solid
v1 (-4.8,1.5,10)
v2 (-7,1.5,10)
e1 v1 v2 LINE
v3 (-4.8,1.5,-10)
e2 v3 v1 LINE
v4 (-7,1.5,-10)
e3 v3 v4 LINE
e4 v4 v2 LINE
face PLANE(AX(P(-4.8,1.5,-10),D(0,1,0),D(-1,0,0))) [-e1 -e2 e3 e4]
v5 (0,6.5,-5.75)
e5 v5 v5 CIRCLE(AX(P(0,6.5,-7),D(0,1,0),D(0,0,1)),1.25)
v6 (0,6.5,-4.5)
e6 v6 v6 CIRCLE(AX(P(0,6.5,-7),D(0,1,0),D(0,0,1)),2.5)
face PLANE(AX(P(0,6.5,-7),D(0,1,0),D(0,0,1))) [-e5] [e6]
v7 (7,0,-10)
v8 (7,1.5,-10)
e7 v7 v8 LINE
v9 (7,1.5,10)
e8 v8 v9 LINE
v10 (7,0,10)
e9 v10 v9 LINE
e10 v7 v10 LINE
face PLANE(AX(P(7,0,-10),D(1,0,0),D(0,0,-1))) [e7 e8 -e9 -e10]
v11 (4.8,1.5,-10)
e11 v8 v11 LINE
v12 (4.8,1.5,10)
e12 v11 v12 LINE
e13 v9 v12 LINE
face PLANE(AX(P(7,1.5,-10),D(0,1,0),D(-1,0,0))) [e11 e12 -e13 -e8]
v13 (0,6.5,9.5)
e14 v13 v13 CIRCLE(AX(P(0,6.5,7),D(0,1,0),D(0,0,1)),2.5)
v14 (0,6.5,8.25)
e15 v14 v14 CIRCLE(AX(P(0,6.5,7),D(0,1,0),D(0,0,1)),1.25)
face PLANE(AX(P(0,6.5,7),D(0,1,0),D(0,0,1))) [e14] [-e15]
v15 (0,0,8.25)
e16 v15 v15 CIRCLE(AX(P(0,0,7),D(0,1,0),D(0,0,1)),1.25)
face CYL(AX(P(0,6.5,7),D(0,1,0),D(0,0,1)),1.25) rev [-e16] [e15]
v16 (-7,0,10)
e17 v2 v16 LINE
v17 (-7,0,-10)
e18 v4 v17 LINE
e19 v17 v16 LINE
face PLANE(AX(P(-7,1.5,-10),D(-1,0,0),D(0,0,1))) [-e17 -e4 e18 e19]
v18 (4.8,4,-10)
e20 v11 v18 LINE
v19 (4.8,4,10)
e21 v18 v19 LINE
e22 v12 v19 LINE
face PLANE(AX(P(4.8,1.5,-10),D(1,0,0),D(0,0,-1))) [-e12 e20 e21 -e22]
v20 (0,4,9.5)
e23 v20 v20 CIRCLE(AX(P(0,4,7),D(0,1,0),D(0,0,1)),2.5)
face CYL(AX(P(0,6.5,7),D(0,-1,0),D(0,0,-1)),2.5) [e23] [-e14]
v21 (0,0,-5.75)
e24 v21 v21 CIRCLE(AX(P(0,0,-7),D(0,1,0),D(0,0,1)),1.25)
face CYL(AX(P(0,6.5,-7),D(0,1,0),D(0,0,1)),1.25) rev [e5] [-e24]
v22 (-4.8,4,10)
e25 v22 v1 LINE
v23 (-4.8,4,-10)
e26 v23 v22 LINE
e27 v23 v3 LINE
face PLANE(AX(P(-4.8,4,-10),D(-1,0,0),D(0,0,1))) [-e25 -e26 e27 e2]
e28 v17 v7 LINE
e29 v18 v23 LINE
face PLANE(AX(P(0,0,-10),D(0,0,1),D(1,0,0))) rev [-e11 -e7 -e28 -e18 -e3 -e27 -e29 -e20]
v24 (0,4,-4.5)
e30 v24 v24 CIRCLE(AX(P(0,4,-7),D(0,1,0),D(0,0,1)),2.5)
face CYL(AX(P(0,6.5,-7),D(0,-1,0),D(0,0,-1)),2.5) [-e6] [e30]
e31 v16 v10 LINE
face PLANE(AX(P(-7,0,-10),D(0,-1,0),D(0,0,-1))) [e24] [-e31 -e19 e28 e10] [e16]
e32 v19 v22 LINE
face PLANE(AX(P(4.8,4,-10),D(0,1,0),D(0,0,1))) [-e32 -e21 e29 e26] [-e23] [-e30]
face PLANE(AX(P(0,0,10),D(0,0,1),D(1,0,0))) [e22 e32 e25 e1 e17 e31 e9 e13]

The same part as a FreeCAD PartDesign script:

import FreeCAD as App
import Part
import Sketcher
from FreeCAD import Vector
Q = App.Units.Quantity

doc = App.newDocument("Part")
body = doc.addObject("PartDesign::Body", "Body")

sketch1 = body.newObject("Sketcher::SketchObject", "Sketch")
sketch1.AttachmentSupport = (doc.getObject("XY_Plane"), [""])
sketch1.MapMode = "FlatFace"
sketch1.addGeometry([
    Part.LineSegment(Vector(-7, 0, 0), Vector(7, 0, 0)),
    Part.LineSegment(Vector(7, 0, 0), Vector(7, 1.5, 0)),
    Part.LineSegment(Vector(7, 1.5, 0), Vector(4.8, 1.5, 0)),
    Part.LineSegment(Vector(4.8, 1.5, 0), Vector(4.8, 4, 0)),
    Part.LineSegment(Vector(4.8, 4, 0), Vector(-4.8, 4, 0)),
    Part.LineSegment(Vector(-4.8, 4, 0), Vector(-4.8, 1.5, 0)),
    Part.LineSegment(Vector(-4.8, 1.5, 0), Vector(-7, 1.5, 0)),
    Part.LineSegment(Vector(-7, 1.5, 0), Vector(-7, 0, 0)),
], False)
sketch1.addConstraint([
    Sketcher.Constraint("Coincident", 0, 2, 1, 1),
    Sketcher.Constraint("Coincident", 1, 2, 2, 1),
    Sketcher.Constraint("Coincident", 2, 2, 3, 1),
    Sketcher.Constraint("Coincident", 3, 2, 4, 1),
    Sketcher.Constraint("Coincident", 4, 2, 5, 1),
    Sketcher.Constraint("Coincident", 5, 2, 6, 1),
    Sketcher.Constraint("Coincident", 6, 2, 7, 1),
    Sketcher.Constraint("Coincident", 7, 2, 0, 1),
    Sketcher.Constraint("Horizontal", 0),
    Sketcher.Constraint("Vertical", 1),
    Sketcher.Constraint("Horizontal", 2),
    Sketcher.Constraint("Vertical", 3),
    Sketcher.Constraint("Horizontal", 4),
    Sketcher.Constraint("Vertical", 5),
    Sketcher.Constraint("Horizontal", 6),
    Sketcher.Constraint("Vertical", 7),
    Sketcher.Constraint("Symmetric", 0, 2, 7, 2, -1, 1),
    Sketcher.Constraint("Symmetric", 2, 2, 5, 2, -2),
    Sketcher.Constraint("DistanceX", 0, 1, 0, 2, Q("14 mm")),
    Sketcher.Constraint("DistanceX", 2, 2, 2, 1, Q("2.2 mm")),
    Sketcher.Constraint("DistanceY", 1, 1, 1, 2, Q("1.5 mm")),
    Sketcher.Constraint("DistanceY", 3, 1, 3, 2, Q("2.5 mm")),
])
pad1 = body.newObject("PartDesign::Pad", "Pad")
pad1.Profile = sketch1
pad1.Type = "TwoLengths"
pad1.Length = 10
pad1.Length2 = 10

sketch2 = body.newObject("Sketcher::SketchObject", "Sketch001")
sketch2.AttachmentSupport = (doc.getObject("XZ_Plane"), [""])
sketch2.MapMode = "FlatFace"
sketch2.AttachmentOffset = App.Placement(Vector(0, 0, -4), App.Rotation())
sketch2.addGeometry([
    Part.Circle(Vector(0, -7, 0), Vector(0, 0, 1), 2.5),
    Part.Circle(Vector(0, 7, 0), Vector(0, 0, 1), 2.5),
], False)
sketch2.addConstraint([
    Sketcher.Constraint("Equal", 0, 1),
    Sketcher.Constraint("Symmetric", 0, 3, 1, 3, -1, 1),
    Sketcher.Constraint("PointOnObject", 0, 3, -2),
    Sketcher.Constraint("Diameter", 0, Q("5 mm")),
    Sketcher.Constraint("DistanceY", 0, 3, -1, 1, Q("7 mm")),
])
pad2 = body.newObject("PartDesign::Pad", "Pad001")
pad2.Profile = sketch2
pad2.Length = 2.5
pad2.Reversed = True

sketch3 = body.newObject("Sketcher::SketchObject", "Sketch002")
sketch3.AttachmentSupport = (doc.getObject("XZ_Plane"), [""])
sketch3.MapMode = "FlatFace"
sketch3.AttachmentOffset = App.Placement(Vector(0, 0, -6.5), App.Rotation())
sketch3.addGeometry([
    Part.Circle(Vector(0, 7, 0), Vector(0, 0, 1), 1.2),
    Part.Circle(Vector(0, -7, 0), Vector(0, 0, 1), 1.2),
], False)
sketch3.addConstraint([
    Sketcher.Constraint("Equal", 0, 1),
    Sketcher.Constraint("Symmetric", 0, 3, 1, 3, -1, 1),
    Sketcher.Constraint("PointOnObject", 0, 3, -2),
    Sketcher.Constraint("Diameter", 0, Q("2.5 mm")),
    Sketcher.Constraint("DistanceY", -1, 1, 0, 3, Q("7 mm")),
])
doc.recompute()
hole = body.newObject("PartDesign::Hole", "Hole")
hole.Profile = sketch3
hole.ThreadType = "None"
hole.Diameter = 2.5
hole.DepthType = "ThroughAll"
hole.Reversed = True

doc.recompute()
